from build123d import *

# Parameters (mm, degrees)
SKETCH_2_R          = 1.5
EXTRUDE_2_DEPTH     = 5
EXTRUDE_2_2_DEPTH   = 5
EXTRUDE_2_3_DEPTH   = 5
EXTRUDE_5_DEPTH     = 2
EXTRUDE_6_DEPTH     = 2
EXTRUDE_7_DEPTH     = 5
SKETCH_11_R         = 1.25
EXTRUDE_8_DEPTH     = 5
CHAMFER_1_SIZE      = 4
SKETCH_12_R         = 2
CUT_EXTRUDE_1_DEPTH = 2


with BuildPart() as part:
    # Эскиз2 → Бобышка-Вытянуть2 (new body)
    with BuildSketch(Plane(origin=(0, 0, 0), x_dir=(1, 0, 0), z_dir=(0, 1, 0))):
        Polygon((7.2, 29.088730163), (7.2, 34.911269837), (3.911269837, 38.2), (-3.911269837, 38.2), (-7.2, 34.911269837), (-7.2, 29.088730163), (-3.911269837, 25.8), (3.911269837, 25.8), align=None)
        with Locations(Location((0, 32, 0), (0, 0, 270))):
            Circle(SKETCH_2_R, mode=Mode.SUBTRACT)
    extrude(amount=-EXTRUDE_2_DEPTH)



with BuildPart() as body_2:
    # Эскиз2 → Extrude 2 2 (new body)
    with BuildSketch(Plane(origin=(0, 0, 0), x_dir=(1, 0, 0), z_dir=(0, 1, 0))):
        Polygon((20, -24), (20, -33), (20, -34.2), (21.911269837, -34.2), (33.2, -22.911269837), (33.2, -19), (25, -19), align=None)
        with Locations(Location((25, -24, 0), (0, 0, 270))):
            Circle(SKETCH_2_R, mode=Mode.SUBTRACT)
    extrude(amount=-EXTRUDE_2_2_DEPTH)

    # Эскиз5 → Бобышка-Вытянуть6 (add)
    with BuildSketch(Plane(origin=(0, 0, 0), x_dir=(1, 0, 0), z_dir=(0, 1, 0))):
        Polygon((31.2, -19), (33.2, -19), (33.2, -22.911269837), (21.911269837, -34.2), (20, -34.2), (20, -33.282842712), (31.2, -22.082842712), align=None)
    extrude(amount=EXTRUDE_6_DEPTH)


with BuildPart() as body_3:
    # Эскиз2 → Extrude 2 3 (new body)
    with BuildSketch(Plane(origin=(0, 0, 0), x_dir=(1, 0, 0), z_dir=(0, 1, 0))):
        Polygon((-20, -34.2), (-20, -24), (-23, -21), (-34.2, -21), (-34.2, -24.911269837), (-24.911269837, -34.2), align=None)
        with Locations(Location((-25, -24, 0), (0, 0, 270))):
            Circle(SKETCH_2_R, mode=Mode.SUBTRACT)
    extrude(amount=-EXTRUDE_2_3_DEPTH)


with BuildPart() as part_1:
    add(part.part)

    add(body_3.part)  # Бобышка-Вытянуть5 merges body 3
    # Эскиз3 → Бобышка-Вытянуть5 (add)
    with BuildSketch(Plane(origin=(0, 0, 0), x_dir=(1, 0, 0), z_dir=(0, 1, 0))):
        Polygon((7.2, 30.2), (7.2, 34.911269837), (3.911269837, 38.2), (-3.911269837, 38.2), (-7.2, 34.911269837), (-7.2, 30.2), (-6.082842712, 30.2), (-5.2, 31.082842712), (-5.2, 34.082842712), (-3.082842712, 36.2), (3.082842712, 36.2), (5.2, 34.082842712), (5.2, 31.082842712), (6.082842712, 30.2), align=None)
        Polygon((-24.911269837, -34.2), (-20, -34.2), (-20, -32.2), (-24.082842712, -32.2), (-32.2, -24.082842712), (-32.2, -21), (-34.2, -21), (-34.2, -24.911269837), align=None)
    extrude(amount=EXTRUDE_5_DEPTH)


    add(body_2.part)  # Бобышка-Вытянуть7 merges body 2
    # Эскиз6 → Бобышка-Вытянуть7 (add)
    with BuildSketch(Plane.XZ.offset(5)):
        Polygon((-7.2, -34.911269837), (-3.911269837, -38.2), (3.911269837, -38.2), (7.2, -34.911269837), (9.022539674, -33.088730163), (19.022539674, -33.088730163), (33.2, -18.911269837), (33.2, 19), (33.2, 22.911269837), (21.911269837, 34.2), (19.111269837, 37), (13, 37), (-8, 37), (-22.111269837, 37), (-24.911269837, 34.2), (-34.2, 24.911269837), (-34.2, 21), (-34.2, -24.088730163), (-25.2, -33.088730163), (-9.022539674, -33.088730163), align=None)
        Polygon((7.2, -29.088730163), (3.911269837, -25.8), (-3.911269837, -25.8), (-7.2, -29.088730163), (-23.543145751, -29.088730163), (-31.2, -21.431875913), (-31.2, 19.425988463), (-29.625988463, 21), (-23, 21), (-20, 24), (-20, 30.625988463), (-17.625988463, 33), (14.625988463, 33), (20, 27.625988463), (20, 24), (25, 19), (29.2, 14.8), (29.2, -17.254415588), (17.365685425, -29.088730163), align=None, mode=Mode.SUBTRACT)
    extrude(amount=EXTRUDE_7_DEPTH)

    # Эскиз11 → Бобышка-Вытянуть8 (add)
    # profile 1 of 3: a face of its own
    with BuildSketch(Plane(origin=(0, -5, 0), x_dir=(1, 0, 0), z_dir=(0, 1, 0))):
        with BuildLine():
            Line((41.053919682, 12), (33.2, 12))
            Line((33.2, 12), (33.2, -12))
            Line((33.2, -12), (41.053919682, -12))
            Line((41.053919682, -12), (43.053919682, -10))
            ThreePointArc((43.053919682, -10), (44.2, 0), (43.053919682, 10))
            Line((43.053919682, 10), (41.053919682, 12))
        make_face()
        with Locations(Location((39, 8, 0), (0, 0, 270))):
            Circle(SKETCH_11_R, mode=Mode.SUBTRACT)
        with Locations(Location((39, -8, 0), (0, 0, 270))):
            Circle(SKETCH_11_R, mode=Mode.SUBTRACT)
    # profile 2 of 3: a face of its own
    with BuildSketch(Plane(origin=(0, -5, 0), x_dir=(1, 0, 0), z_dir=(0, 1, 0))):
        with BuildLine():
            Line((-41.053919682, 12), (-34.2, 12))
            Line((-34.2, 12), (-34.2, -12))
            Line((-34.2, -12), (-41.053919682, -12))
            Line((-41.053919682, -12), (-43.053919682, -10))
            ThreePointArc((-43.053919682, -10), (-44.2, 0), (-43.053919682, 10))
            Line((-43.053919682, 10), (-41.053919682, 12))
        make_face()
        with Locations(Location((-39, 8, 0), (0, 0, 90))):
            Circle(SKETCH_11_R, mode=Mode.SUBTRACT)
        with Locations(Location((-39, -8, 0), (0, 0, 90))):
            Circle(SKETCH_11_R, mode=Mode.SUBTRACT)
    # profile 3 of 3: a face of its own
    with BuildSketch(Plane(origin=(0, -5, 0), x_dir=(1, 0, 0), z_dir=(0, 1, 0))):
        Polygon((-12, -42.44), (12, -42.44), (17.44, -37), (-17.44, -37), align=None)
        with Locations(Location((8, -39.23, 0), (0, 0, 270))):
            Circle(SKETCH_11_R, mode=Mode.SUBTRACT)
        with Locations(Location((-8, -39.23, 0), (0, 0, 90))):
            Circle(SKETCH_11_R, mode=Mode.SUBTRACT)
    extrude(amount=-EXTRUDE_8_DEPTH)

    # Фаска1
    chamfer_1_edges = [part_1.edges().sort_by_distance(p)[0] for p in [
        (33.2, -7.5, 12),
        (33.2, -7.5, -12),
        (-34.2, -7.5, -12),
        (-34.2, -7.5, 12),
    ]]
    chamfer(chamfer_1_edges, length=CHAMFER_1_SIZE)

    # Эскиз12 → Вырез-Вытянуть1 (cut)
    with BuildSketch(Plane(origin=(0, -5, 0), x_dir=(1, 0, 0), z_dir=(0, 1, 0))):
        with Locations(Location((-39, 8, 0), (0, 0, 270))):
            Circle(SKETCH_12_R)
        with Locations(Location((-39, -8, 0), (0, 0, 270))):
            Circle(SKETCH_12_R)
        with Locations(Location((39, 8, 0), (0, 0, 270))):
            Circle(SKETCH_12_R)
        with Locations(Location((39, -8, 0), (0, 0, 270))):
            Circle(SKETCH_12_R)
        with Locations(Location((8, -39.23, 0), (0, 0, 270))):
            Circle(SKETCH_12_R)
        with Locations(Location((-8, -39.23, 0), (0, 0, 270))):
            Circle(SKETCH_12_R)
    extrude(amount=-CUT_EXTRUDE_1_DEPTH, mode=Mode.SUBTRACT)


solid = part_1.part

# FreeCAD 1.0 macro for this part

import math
import FreeCAD as App
import Part
import Sketcher
Q = App.Units.Quantity


def edges_at(feature, points):
    """Names of the edges that pass closest to the given points."""
    edges = feature.Shape.Edges
    near = lambda p: min(range(len(edges)), key=lambda i: edges[i].distToShape(Part.Vertex(*p))[0])
    return sorted({f"Edge{near(p) + 1}" for p in points})

doc = App.newDocument("Part")
body = doc.addObject("PartDesign::Body", "Body")

sketch1 = doc.addObject("Sketcher::SketchObject", "Sketch")
body.addObject(sketch1)
sketch1.AttachmentSupport = (doc.XZ_Plane, [""])
sketch1.MapMode = "FlatFace"
sketch1.addGeometry(Part.LineSegment(App.Vector(7.2, -29.1, 0), App.Vector(7.2, -34.9, 0)), False)
sketch1.addGeometry(Part.LineSegment(App.Vector(7.2, -34.9, 0), App.Vector(3.9, -38.2, 0)), False)
sketch1.addGeometry(Part.LineSegment(App.Vector(3.9, -38.2, 0), App.Vector(-3.9, -38.2, 0)), False)
sketch1.addGeometry(Part.LineSegment(App.Vector(-3.9, -38.2, 0), App.Vector(-7.2, -34.9, 0)), False)
sketch1.addGeometry(Part.LineSegment(App.Vector(-7.2, -34.9, 0), App.Vector(-7.2, -29.1, 0)), False)
sketch1.addGeometry(Part.LineSegment(App.Vector(-7.2, -29.1, 0), App.Vector(-3.9, -25.8, 0)), False)
sketch1.addGeometry(Part.LineSegment(App.Vector(-3.9, -25.8, 0), App.Vector(3.9, -25.8, 0)), False)
sketch1.addGeometry(Part.LineSegment(App.Vector(3.9, -25.8, 0), App.Vector(7.2, -29.1, 0)), False)
sketch1.addGeometry(Part.Circle(App.Vector(0, -32, 0), App.Vector(0, 0, 1), 1.5), False)
sketch1.addConstraint(Sketcher.Constraint("Coincident", 0, 2, 1, 1))
sketch1.addConstraint(Sketcher.Constraint("Coincident", 1, 2, 2, 1))
sketch1.addConstraint(Sketcher.Constraint("Coincident", 2, 2, 3, 1))
sketch1.addConstraint(Sketcher.Constraint("Coincident", 3, 2, 4, 1))
sketch1.addConstraint(Sketcher.Constraint("Coincident", 4, 2, 5, 1))
sketch1.addConstraint(Sketcher.Constraint("Coincident", 5, 2, 6, 1))
sketch1.addConstraint(Sketcher.Constraint("Coincident", 6, 2, 7, 1))
sketch1.addConstraint(Sketcher.Constraint("Coincident", 7, 2, 0, 1))
sketch1.addConstraint(Sketcher.Constraint("Vertical", 0))
sketch1.addConstraint(Sketcher.Constraint("Horizontal", 2))
sketch1.addConstraint(Sketcher.Constraint("Vertical", 4))
sketch1.addConstraint(Sketcher.Constraint("Horizontal", 6))
sketch1.addConstraint(Sketcher.Constraint("Symmetric", 0, 2, 3, 2, -2))
sketch1.addConstraint(Sketcher.Constraint("PointOnObject", 8, 3, -2))
sketch1.addConstraint(Sketcher.Constraint("Perpendicular", 1, 3))
sketch1.addConstraint(Sketcher.Constraint("Perpendicular", 3, 5))
sketch1.addConstraint(Sketcher.Constraint("Perpendicular", 5, 7))
sketch1.addConstraint(Sketcher.Constraint("Horizontal", 4, 2, 7, 2))
sketch1.addConstraint(Sketcher.Constraint("Vertical", 2, 2, 5, 2))
sketch1.addConstraint(Sketcher.Constraint("Vertical", 1, 2, 6, 2))
sketch1.addConstraint(Sketcher.Constraint("Diameter", 8, 3.0))
sketch1.addConstraint(Sketcher.Constraint("DistanceY", 8, 3, -1, 1, 32.0))
sketch1.addConstraint(Sketcher.Constraint("DistanceX", -1, 1, 0, 2, 7.2))
sketch1.addConstraint(Sketcher.Constraint("DistanceY", 1, 2, -1, 1, 38.2))
sketch1.addConstraint(Sketcher.Constraint("DistanceY", 5, 2, -1, 1, 25.8))
sketch1.addConstraint(Sketcher.Constraint("DistanceX", 2, 2, 2, 1, 7.82254))
pad1 = doc.addObject("PartDesign::Pad", "Pad")
body.addObject(pad1)
pad1.Profile = sketch1
pad1.Length = 5
body2 = doc.addObject("PartDesign::Body", "Body001")

sketch2 = doc.addObject("Sketcher::SketchObject", "Sketch001")
body2.addObject(sketch2)
sketch2.AttachmentSupport = (doc.getObject("XZ_Plane001"), [""])
sketch2.MapMode = "FlatFace"
sketch2.addGeometry(Part.LineSegment(App.Vector(20, 24, 0), App.Vector(20, 34.2, 0)), False)
sketch2.addGeometry(Part.LineSegment(App.Vector(20, 34.2, 0), App.Vector(21.9, 34.2, 0)), False)
sketch2.addGeometry(Part.LineSegment(App.Vector(21.9, 34.2, 0), App.Vector(33.2, 22.9, 0)), False)
sketch2.addGeometry(Part.LineSegment(App.Vector(33.2, 22.9, 0), App.Vector(33.2, 19, 0)), False)
sketch2.addGeometry(Part.LineSegment(App.Vector(33.2, 19, 0), App.Vector(25, 19, 0)), False)
sketch2.addGeometry(Part.LineSegment(App.Vector(25, 19, 0), App.Vector(20, 24, 0)), False)
sketch2.addGeometry(Part.Circle(App.Vector(25, 24, 0), App.Vector(0, 0, 1), 1.5), False)
sketch2.addConstraint(Sketcher.Constraint("Coincident", 0, 2, 1, 1))
sketch2.addConstraint(Sketcher.Constraint("Coincident", 1, 2, 2, 1))
sketch2.addConstraint(Sketcher.Constraint("Coincident", 2, 2, 3, 1))
sketch2.addConstraint(Sketcher.Constraint("Coincident", 3, 2, 4, 1))
sketch2.addConstraint(Sketcher.Constraint("Coincident", 4, 2, 5, 1))
sketch2.addConstraint(Sketcher.Constraint("Coincident", 5, 2, 0, 1))
sketch2.addConstraint(Sketcher.Constraint("Vertical", 0))
sketch2.addConstraint(Sketcher.Constraint("Horizontal", 1))
sketch2.addConstraint(Sketcher.Constraint("Vertical", 3))
sketch2.addConstraint(Sketcher.Constraint("Horizontal", 4))
sketch2.addConstraint(Sketcher.Constraint("Parallel", 2, 5))
sketch2.addConstraint(Sketcher.Constraint("Horizontal", 6, 3, 5, 2))
sketch2.addConstraint(Sketcher.Constraint("Vertical", 6, 3, 4, 2))
sketch2.addConstraint(Sketcher.Constraint("Diameter", 6, 3.0))
sketch2.addConstraint(Sketcher.Constraint("Angle", 2, Q("-45 deg")))
sketch2.addConstraint(Sketcher.Constraint("DistanceX", 4, 2, 4, 1, 8.2))
sketch2.addConstraint(Sketcher.Constraint("DistanceY", 0, 1, 0, 2, 10.2))
sketch2.addConstraint(Sketcher.Constraint("DistanceX", -1, 1, 6, 3, 25.0))
sketch2.addConstraint(Sketcher.Constraint("DistanceY", -1, 1, 6, 3, 24.0))
sketch2.addConstraint(Sketcher.Constraint("DistanceX", -1, 1, 0, 2, 20.0))
sketch2.addConstraint(Sketcher.Constraint("DistanceX", 1, 1, 1, 2, 1.91127))
pad2 = doc.addObject("PartDesign::Pad", "Pad001")
body2.addObject(pad2)
pad2.Profile = sketch2
pad2.Length = 5

sketch3 = doc.addObject("Sketcher::SketchObject", "Sketch002")
body2.addObject(sketch3)
sketch3.AttachmentSupport = (doc.getObject("XZ_Plane001"), [""])
sketch3.MapMode = "FlatFace"
sketch3.addGeometry(Part.LineSegment(App.Vector(33.2, 19, 0), App.Vector(31.2, 19, 0)), False)
sketch3.addGeometry(Part.LineSegment(App.Vector(31.2, 19, 0), App.Vector(31.2, 22.1, 0)), False)
sketch3.addGeometry(Part.LineSegment(App.Vector(31.2, 22.1, 0), App.Vector(20, 33.3, 0)), False)
sketch3.addGeometry(Part.LineSegment(App.Vector(20, 33.3, 0), App.Vector(20, 34.2, 0)), False)
sketch3.addGeometry(Part.LineSegment(App.Vector(20, 34.2, 0), App.Vector(21.9, 34.2, 0)), False)
sketch3.addGeometry(Part.LineSegment(App.Vector(21.9, 34.2, 0), App.Vector(33.2, 22.9, 0)), False)
sketch3.addGeometry(Part.LineSegment(App.Vector(33.2, 22.9, 0), App.Vector(33.2, 19, 0)), False)
sketch3.addConstraint(Sketcher.Constraint("Coincident", 0, 2, 1, 1))
sketch3.addConstraint(Sketcher.Constraint("Coincident", 1, 2, 2, 1))
sketch3.addConstraint(Sketcher.Constraint("Coincident", 2, 2, 3, 1))
sketch3.addConstraint(Sketcher.Constraint("Coincident", 3, 2, 4, 1))
sketch3.addConstraint(Sketcher.Constraint("Coincident", 4, 2, 5, 1))
sketch3.addConstraint(Sketcher.Constraint("Coincident", 5, 2, 6, 1))
sketch3.addConstraint(Sketcher.Constraint("Coincident", 6, 2, 0, 1))
sketch3.addConstraint(Sketcher.Constraint("Horizontal", 0))
sketch3.addConstraint(Sketcher.Constraint("Vertical", 1))
sketch3.addConstraint(Sketcher.Constraint("Vertical", 3))
sketch3.addConstraint(Sketcher.Constraint("Horizontal", 4))
sketch3.addConstraint(Sketcher.Constraint("Vertical", 6))
sketch3.addConstraint(Sketcher.Constraint("Parallel", 2, 5))
sketch3.addConstraint(Sketcher.Constraint("DistanceX", 0, 2, 0, 1, 2.0))
sketch3.addConstraint(Sketcher.Constraint("Angle", 2, Q("135 deg")))
sketch3.addConstraint(Sketcher.Constraint("DistanceY", -1, 1, 0, 2, 19.0))
sketch3.addConstraint(Sketcher.Constraint("DistanceX", -1, 1, 2, 2, 20.0))
sketch3.addConstraint(Sketcher.Constraint("DistanceX", -1, 1, 0, 2, 31.2))
sketch3.addConstraint(Sketcher.Constraint("DistanceY", -1, 1, 3, 2, 34.2))
sketch3.addConstraint(Sketcher.Constraint("DistanceX", 4, 1, 4, 2, 1.91127))
sketch3.addConstraint(Sketcher.Constraint("DistanceY", 1, 1, 1, 2, 3.082843))
pad3 = doc.addObject("PartDesign::Pad", "Pad002")
body2.addObject(pad3)
pad3.Profile = sketch3
pad3.Length = 2
pad3.Reversed = True
body3 = doc.addObject("PartDesign::Body", "Body002")

sketch4 = doc.addObject("Sketcher::SketchObject", "Sketch003")
body3.addObject(sketch4)
sketch4.AttachmentSupport = (doc.getObject("XZ_Plane002"), [""])
sketch4.MapMode = "FlatFace"
sketch4.addGeometry(Part.LineSegment(App.Vector(-20, 34.2, 0), App.Vector(-20, 24, 0)), False)
sketch4.addGeometry(Part.LineSegment(App.Vector(-20, 24, 0), App.Vector(-23, 21, 0)), False)
sketch4.addGeometry(Part.LineSegment(App.Vector(-23, 21, 0), App.Vector(-34.2, 21, 0)), False)
sketch4.addGeometry(Part.LineSegment(App.Vector(-34.2, 21, 0), App.Vector(-34.2, 24.9, 0)), False)
sketch4.addGeometry(Part.LineSegment(App.Vector(-34.2, 24.9, 0), App.Vector(-24.9, 34.2, 0)), False)
sketch4.addGeometry(Part.LineSegment(App.Vector(-24.9, 34.2, 0), App.Vector(-20, 34.2, 0)), False)
sketch4.addGeometry(Part.Circle(App.Vector(-25, 24, 0), App.Vector(0, 0, 1), 1.5), False)
sketch4.addConstraint(Sketcher.Constraint("Coincident", 0, 2, 1, 1))
sketch4.addConstraint(Sketcher.Constraint("Coincident", 1, 2, 2, 1))
sketch4.addConstraint(Sketcher.Constraint("Coincident", 2, 2, 3, 1))
sketch4.addConstraint(Sketcher.Constraint("Coincident", 3, 2, 4, 1))
sketch4.addConstraint(Sketcher.Constraint("Coincident", 4, 2, 5, 1))
sketch4.addConstraint(Sketcher.Constraint("Coincident", 5, 2, 0, 1))
sketch4.addConstraint(Sketcher.Constraint("Vertical", 0))
sketch4.addConstraint(Sketcher.Constraint("Horizontal", 2))
sketch4.addConstraint(Sketcher.Constraint("Vertical", 3))
sketch4.addConstraint(Sketcher.Constraint("Horizontal", 5))
sketch4.addConstraint(Sketcher.Constraint("Parallel", 1, 4))
sketch4.addConstraint(Sketcher.Constraint("Horizontal", 6, 3, 0, 2))
sketch4.addConstraint(Sketcher.Constraint("Diameter", 6, 3.0))
sketch4.addConstraint(Sketcher.Constraint("Angle", 1, Q("-135 deg")))
sketch4.addConstraint(Sketcher.Constraint("DistanceX", 2, 2, 2, 1, 11.2))
sketch4.addConstraint(Sketcher.Constraint("DistanceY", 0, 2, 0, 1, 10.2))
sketch4.addConstraint(Sketcher.Constraint("DistanceX", 6, 3, -1, 1, 25.0))
sketch4.addConstraint(Sketcher.Constraint("DistanceY", -1, 1, 6, 3, 24.0))
sketch4.addConstraint(Sketcher.Constraint("DistanceX", 0, 2, -1, 1, 20.0))
sketch4.addConstraint(Sketcher.Constraint("DistanceX", 1, 2, -1, 1, 23.0))
sketch4.addConstraint(Sketcher.Constraint("DistanceX", 5, 1, 5, 2, 4.91127))
pad4 = doc.addObject("PartDesign::Pad", "Pad003")
body3.addObject(pad4)
pad4.Profile = sketch4
pad4.Length = 5
body.AllowCompound = True
doc.recompute()

boolean = doc.addObject("PartDesign::Boolean", "Boolean")
body.addObject(boolean)
boolean.Type = "Fuse"
boolean.addObjects([body3])

sketch5 = doc.addObject("Sketcher::SketchObject", "Sketch004")
body.addObject(sketch5)
sketch5.AttachmentSupport = (doc.XZ_Plane, [""])
sketch5.MapMode = "FlatFace"
sketch5.addGeometry(Part.LineSegment(App.Vector(7.2, -30.2, 0), App.Vector(7.2, -34.9, 0)), False)
sketch5.addGeometry(Part.LineSegment(App.Vector(7.2, -34.9, 0), App.Vector(3.9, -38.2, 0)), False)
sketch5.addGeometry(Part.LineSegment(App.Vector(3.9, -38.2, 0), App.Vector(-3.9, -38.2, 0)), False)
sketch5.addGeometry(Part.LineSegment(App.Vector(-3.9, -38.2, 0), App.Vector(-7.2, -34.9, 0)), False)
sketch5.addGeometry(Part.LineSegment(App.Vector(-7.2, -34.9, 0), App.Vector(-7.2, -30.2, 0)), False)
sketch5.addGeometry(Part.LineSegment(App.Vector(-7.2, -30.2, 0), App.Vector(-6.1, -30.2, 0)), False)
sketch5.addGeometry(Part.LineSegment(App.Vector(-6.1, -30.2, 0), App.Vector(-5.2, -31.1, 0)), False)
sketch5.addGeometry(Part.LineSegment(App.Vector(-5.2, -31.1, 0), App.Vector(-5.2, -34.1, 0)), False)
sketch5.addGeometry(Part.LineSegment(App.Vector(-5.2, -34.1, 0), App.Vector(-3.1, -36.2, 0)), False)
sketch5.addGeometry(Part.LineSegment(App.Vector(-3.1, -36.2, 0), App.Vector(3.1, -36.2, 0)), False)
sketch5.addGeometry(Part.LineSegment(App.Vector(3.1, -36.2, 0), App.Vector(5.2, -34.1, 0)), False)
sketch5.addGeometry(Part.LineSegment(App.Vector(5.2, -34.1, 0), App.Vector(5.2, -31.1, 0)), False)
sketch5.addGeometry(Part.LineSegment(App.Vector(5.2, -31.1, 0), App.Vector(6.1, -30.2, 0)), False)
sketch5.addGeometry(Part.LineSegment(App.Vector(6.1, -30.2, 0), App.Vector(7.2, -30.2, 0)), False)
sketch5.addGeometry(Part.LineSegment(App.Vector(-24.9, 34.2, 0), App.Vector(-20, 34.2, 0)), False)
sketch5.addGeometry(Part.LineSegment(App.Vector(-20, 34.2, 0), App.Vector(-20, 32.2, 0)), False)
sketch5.addGeometry(Part.LineSegment(App.Vector(-20, 32.2, 0), App.Vector(-24.1, 32.2, 0)), False)
sketch5.addGeometry(Part.LineSegment(App.Vector(-24.1, 32.2, 0), App.Vector(-32.2, 24.1, 0)), False)
sketch5.addGeometry(Part.LineSegment(App.Vector(-32.2, 24.1, 0), App.Vector(-32.2, 21, 0)), False)
sketch5.addGeometry(Part.LineSegment(App.Vector(-32.2, 21, 0), App.Vector(-34.2, 21, 0)), False)
sketch5.addGeometry(Part.LineSegment(App.Vector(-34.2, 21, 0), App.Vector(-34.2, 24.9, 0)), False)
sketch5.addGeometry(Part.LineSegment(App.Vector(-34.2, 24.9, 0), App.Vector(-24.9, 34.2, 0)), False)
sketch5.addConstraint(Sketcher.Constraint("Coincident", 0, 2, 1, 1))
sketch5.addConstraint(Sketcher.Constraint("Coincident", 1, 2, 2, 1))
sketch5.addConstraint(Sketcher.Constraint("Coincident", 2, 2, 3, 1))
sketch5.addConstraint(Sketcher.Constraint("Coincident", 3, 2, 4, 1))
sketch5.addConstraint(Sketcher.Constraint("Coincident", 4, 2, 5, 1))
sketch5.addConstraint(Sketcher.Constraint("Coincident", 5, 2, 6, 1))
sketch5.addConstraint(Sketcher.Constraint("Coincident", 6, 2, 7, 1))
sketch5.addConstraint(Sketcher.Constraint("Coincident", 7, 2, 8, 1))
sketch5.addConstraint(Sketcher.Constraint("Coincident", 8, 2, 9, 1))
sketch5.addConstraint(Sketcher.Constraint("Coincident", 9, 2, 10, 1))
sketch5.addConstraint(Sketcher.Constraint("Coincident", 10, 2, 11, 1))
sketch5.addConstraint(Sketcher.Constraint("Coincident", 11, 2, 12, 1))
sketch5.addConstraint(Sketcher.Constraint("Coincident", 12, 2, 13, 1))
sketch5.addConstraint(Sketcher.Constraint("Coincident", 13, 2, 0, 1))
sketch5.addConstraint(Sketcher.Constraint("Coincident", 14, 2, 15, 1))
sketch5.addConstraint(Sketcher.Constraint("Coincident", 15, 2, 16, 1))
sketch5.addConstraint(Sketcher.Constraint("Coincident", 16, 2, 17, 1))
sketch5.addConstraint(Sketcher.Constraint("Coincident", 17, 2, 18, 1))
sketch5.addConstraint(Sketcher.Constraint("Coincident", 18, 2, 19, 1))
sketch5.addConstraint(Sketcher.Constraint("Coincident", 19, 2, 20, 1))
sketch5.addConstraint(Sketcher.Constraint("Coincident", 20, 2, 21, 1))
sketch5.addConstraint(Sketcher.Constraint("Coincident", 21, 2, 14, 1))
sketch5.addConstraint(Sketcher.Constraint("Vertical", 0))
sketch5.addConstraint(Sketcher.Constraint("Horizontal", 2))
sketch5.addConstraint(Sketcher.Constraint("Vertical", 4))
sketch5.addConstraint(Sketcher.Constraint("Horizontal", 5))
sketch5.addConstraint(Sketcher.Constraint("Vertical", 7))
sketch5.addConstraint(Sketcher.Constraint("Horizontal", 9))
sketch5.addConstraint(Sketcher.Constraint("Vertical", 11))
sketch5.addConstraint(Sketcher.Constraint("Horizontal", 13))
sketch5.addConstraint(Sketcher.Constraint("Horizontal", 14))
sketch5.addConstraint(Sketcher.Constraint("Vertical", 15))
sketch5.addConstraint(Sketcher.Constraint("Horizontal", 16))
sketch5.addConstraint(Sketcher.Constraint("Vertical", 18))
sketch5.addConstraint(Sketcher.Constraint("Horizontal", 19))
sketch5.addConstraint(Sketcher.Constraint("Vertical", 20))
sketch5.addConstraint(Sketcher.Constraint("Symmetric", 0, 2, 3, 2, -2))
sketch5.addConstraint(Sketcher.Constraint("Symmetric", 7, 2, 10, 2, -2))
sketch5.addConstraint(Sketcher.Constraint("Symmetric", 5, 2, 12, 2, -2))
sketch5.addConstraint(Sketcher.Constraint("Perpendicular", 1, 3))
sketch5.addConstraint(Sketcher.Constraint("Parallel", 3, 6))
sketch5.addConstraint(Sketcher.Constraint("Parallel", 6, 8))
sketch5.addConstraint(Sketcher.Constraint("Perpendicular", 8, 10))
sketch5.addConstraint(Sketcher.Constraint("Parallel", 10, 12))
sketch5.addConstraint(Sketcher.Constraint("Parallel", 12, 17))
sketch5.addConstraint(Sketcher.Constraint("Parallel", 17, 21))
sketch5.addConstraint(Sketcher.Constraint("Horizontal", 6, 2, 11, 2))
sketch5.addConstraint(Sketcher.Constraint("Equal", 19, 15))
sketch5.addConstraint(Sketcher.Constraint("DistanceX", 19, 2, 19, 1, 2.0))
sketch5.addConstraint(Sketcher.Constraint("DistanceY", 7, 2, 7, 1, 3.0))
sketch5.addConstraint(Sketcher.Constraint("DistanceX", 14, 2, -1, 1, 20.0))
sketch5.addConstraint(Sketcher.Constraint("DistanceY", -1, 1, 18, 2, 21.0))
sketch5.addConstraint(Sketcher.Constraint("DistanceY", 2, 2, 4, 2, 8.0))
sketch5.addConstraint(Sketcher.Constraint("DistanceX", 4, 2, 6, 2, 2.0))
sketch5.addConstraint(Sketcher.Constraint("DistanceY", 2, 2, 8, 2, 2.0))
sketch5.addConstraint(Sketcher.Constraint("DistanceX", 16, 2, 5, 2, 18.0))
sketch5.addConstraint(Sketcher.Constraint("DistanceX", 17, 2, 4, 2, 25.0))
sketch5.addConstraint(Sketcher.Constraint("DistanceX", -1, 1, 0, 2, 7.2))
sketch5.addConstraint(Sketcher.Constraint("DistanceY", 1, 2, -1, 1, 38.2))
sketch5.addConstraint(Sketcher.Constraint("DistanceY", -1, 1, 14, 2, 34.2))
sketch5.addConstraint(Sketcher.Constraint("DistanceX", 2, 2, 2, 1, 7.82254))
sketch5.addConstraint(Sketcher.Constraint("DistanceX", 14, 1, 14, 2, 4.91127))
sketch5.addConstraint(Sketcher.Constraint("Distance", 6, 1.248528))
pad5 = doc.addObject("PartDesign::Pad", "Pad004")
body.addObject(pad5)
pad5.Profile = sketch5
pad5.Length = 2
pad5.Reversed = True
doc.recompute()

boolean2 = doc.addObject("PartDesign::Boolean", "Boolean001")
body.addObject(boolean2)
boolean2.Type = "Fuse"
boolean2.addObjects([body2])

sketch6 = doc.addObject("Sketcher::SketchObject", "Sketch005")
body.addObject(sketch6)
sketch6.AttachmentSupport = (doc.XZ_Plane, [""])
sketch6.MapMode = "FlatFace"
sketch6.AttachmentOffset = App.Placement(App.Vector(0, 0, 5), App.Rotation())
sketch6.addGeometry(Part.LineSegment(App.Vector(-3.9, -38.2, 0), App.Vector(3.9, -38.2, 0)), False)
sketch6.addGeometry(Part.LineSegment(App.Vector(3.9, -38.2, 0), App.Vector(9, -33.1, 0)), False)
sketch6.addGeometry(Part.LineSegment(App.Vector(9, -33.1, 0), App.Vector(19, -33.1, 0)), False)
sketch6.addGeometry(Part.LineSegment(App.Vector(19, -33.1, 0), App.Vector(33.2, -18.9, 0)), False)
sketch6.addGeometry(Part.LineSegment(App.Vector(33.2, -18.9, 0), App.Vector(33.2, 22.9, 0)), False)
sketch6.addGeometry(Part.LineSegment(App.Vector(33.2, 22.9, 0), App.Vector(19.1, 37, 0)), False)
sketch6.addGeometry(Part.LineSegment(App.Vector(19.1, 37, 0), App.Vector(-22.1, 37, 0)), False)
sketch6.addGeometry(Part.LineSegment(App.Vector(-22.1, 37, 0), App.Vector(-34.2, 24.9, 0)), False)
sketch6.addGeometry(Part.LineSegment(App.Vector(-34.2, 24.9, 0), App.Vector(-34.2, -24.1, 0)), False)
sketch6.addGeometry(Part.LineSegment(App.Vector(-34.2, -24.1, 0), App.Vector(-25.2, -33.1, 0)), False)
sketch6.addGeometry(Part.LineSegment(App.Vector(-25.2, -33.1, 0), App.Vector(-9, -33.1, 0)), False)
sketch6.addGeometry(Part.LineSegment(App.Vector(-9, -33.1, 0), App.Vector(-3.9, -38.2, 0)), False)
sketch6.addGeometry(Part.LineSegment(App.Vector(17.4, -29.1, 0), App.Vector(7.2, -29.1, 0)), False)
sketch6.addGeometry(Part.LineSegment(App.Vector(7.2, -29.1, 0), App.Vector(3.9, -25.8, 0)), False)
sketch6.addGeometry(Part.LineSegment(App.Vector(3.9, -25.8, 0), App.Vector(-3.9, -25.8, 0)), False)
sketch6.addGeometry(Part.LineSegment(App.Vector(-3.9, -25.8, 0), App.Vector(-7.2, -29.1, 0)), False)
sketch6.addGeometry(Part.LineSegment(App.Vector(-7.2, -29.1, 0), App.Vector(-23.5, -29.1, 0)), False)
sketch6.addGeometry(Part.LineSegment(App.Vector(-23.5, -29.1, 0), App.Vector(-31.2, -21.4, 0)), False)
sketch6.addGeometry(Part.LineSegment(App.Vector(-31.2, -21.4, 0), App.Vector(-31.2, 19.4, 0)), False)
sketch6.addGeometry(Part.LineSegment(App.Vector(-31.2, 19.4, 0), App.Vector(-29.6, 21, 0)), False)
sketch6.addGeometry(Part.LineSegment(App.Vector(-29.6, 21, 0), App.Vector(-23, 21, 0)), False)
sketch6.addGeometry(Part.LineSegment(App.Vector(-23, 21, 0), App.Vector(-20, 24, 0)), False)
sketch6.addGeometry(Part.LineSegment(App.Vector(-20, 24, 0), App.Vector(-20, 30.6, 0)), False)
sketch6.addGeometry(Part.LineSegment(App.Vector(-20, 30.6, 0), App.Vector(-17.6, 33, 0)), False)
sketch6.addGeometry(Part.LineSegment(App.Vector(-17.6, 33, 0), App.Vector(14.6, 33, 0)), False)
sketch6.addGeometry(Part.LineSegment(App.Vector(14.6, 33, 0), App.Vector(20, 27.6, 0)), False)
sketch6.addGeometry(Part.LineSegment(App.Vector(20, 27.6, 0), App.Vector(20, 24, 0)), False)
sketch6.addGeometry(Part.LineSegment(App.Vector(20, 24, 0), App.Vector(29.2, 14.8, 0)), False)
sketch6.addGeometry(Part.LineSegment(App.Vector(29.2, 14.8, 0), App.Vector(29.2, -17.3, 0)), False)
sketch6.addGeometry(Part.LineSegment(App.Vector(29.2, -17.3, 0), App.Vector(17.4, -29.1, 0)), False)
sketch6.addConstraint(Sketcher.Constraint("Coincident", 0, 2, 1, 1))
sketch6.addConstraint(Sketcher.Constraint("Coincident", 1, 2, 2, 1))
sketch6.addConstraint(Sketcher.Constraint("Coincident", 2, 2, 3, 1))
sketch6.addConstraint(Sketcher.Constraint("Coincident", 3, 2, 4, 1))
sketch6.addConstraint(Sketcher.Constraint("Coincident", 4, 2, 5, 1))
sketch6.addConstraint(Sketcher.Constraint("Coincident", 5, 2, 6, 1))
sketch6.addConstraint(Sketcher.Constraint("Coincident", 6, 2, 7, 1))
sketch6.addConstraint(Sketcher.Constraint("Coincident", 7, 2, 8, 1))
sketch6.addConstraint(Sketcher.Constraint("Coincident", 8, 2, 9, 1))
sketch6.addConstraint(Sketcher.Constraint("Coincident", 9, 2, 10, 1))
sketch6.addConstraint(Sketcher.Constraint("Coincident", 10, 2, 11, 1))
sketch6.addConstraint(Sketcher.Constraint("Coincident", 11, 2, 0, 1))
sketch6.addConstraint(Sketcher.Constraint("Coincident", 12, 2, 13, 1))
sketch6.addConstraint(Sketcher.Constraint("Coincident", 13, 2, 14, 1))
sketch6.addConstraint(Sketcher.Constraint("Coincident", 14, 2, 15, 1))
sketch6.addConstraint(Sketcher.Constraint("Coincident", 15, 2, 16, 1))
sketch6.addConstraint(Sketcher.Constraint("Coincident", 16, 2, 17, 1))
sketch6.addConstraint(Sketcher.Constraint("Coincident", 17, 2, 18, 1))
sketch6.addConstraint(Sketcher.Constraint("Coincident", 18, 2, 19, 1))
sketch6.addConstraint(Sketcher.Constraint("Coincident", 19, 2, 20, 1))
sketch6.addConstraint(Sketcher.Constraint("Coincident", 20, 2, 21, 1))
sketch6.addConstraint(Sketcher.Constraint("Coincident", 21, 2, 22, 1))
sketch6.addConstraint(Sketcher.Constraint("Coincident", 22, 2, 23, 1))
sketch6.addConstraint(Sketcher.Constraint("Coincident", 23, 2, 24, 1))
sketch6.addConstraint(Sketcher.Constraint("Coincident", 24, 2, 25, 1))
sketch6.addConstraint(Sketcher.Constraint("Coincident", 25, 2, 26, 1))
sketch6.addConstraint(Sketcher.Constraint("Coincident", 26, 2, 27, 1))
sketch6.addConstraint(Sketcher.Constraint("Coincident", 27, 2, 28, 1))
sketch6.addConstraint(Sketcher.Constraint("Coincident", 28, 2, 29, 1))
sketch6.addConstraint(Sketcher.Constraint("Coincident", 29, 2, 12, 1))
sketch6.addConstraint(Sketcher.Constraint("Horizontal", 0))
sketch6.addConstraint(Sketcher.Constraint("Horizontal", 2))
sketch6.addConstraint(Sketcher.Constraint("Vertical", 4))
sketch6.addConstraint(Sketcher.Constraint("Horizontal", 6))
sketch6.addConstraint(Sketcher.Constraint("Vertical", 8))
sketch6.addConstraint(Sketcher.Constraint("Horizontal", 10))
sketch6.addConstraint(Sketcher.Constraint("Horizontal", 12))
sketch6.addConstraint(Sketcher.Constraint("Horizontal", 14))
sketch6.addConstraint(Sketcher.Constraint("Horizontal", 16))
sketch6.addConstraint(Sketcher.Constraint("Vertical", 18))
sketch6.addConstraint(Sketcher.Constraint("Horizontal", 20))
sketch6.addConstraint(Sketcher.Constraint("Vertical", 22))
sketch6.addConstraint(Sketcher.Constraint("Horizontal", 24))
sketch6.addConstraint(Sketcher.Constraint("Vertical", 26))
sketch6.addConstraint(Sketcher.Constraint("Vertical", 28))
sketch6.addConstraint(Sketcher.Constraint("Symmetric", 1, 2, 10, 2, -2))
sketch6.addConstraint(Sketcher.Constraint("Symmetric", 12, 2, 15, 2, -2))
sketch6.addConstraint(Sketcher.Constraint("Symmetric", 21, 2, 26, 2, -2))
sketch6.addConstraint(Sketcher.Constraint("Parallel", 1, 3))
sketch6.addConstraint(Sketcher.Constraint("Perpendicular", 3, 5))
sketch6.addConstraint(Sketcher.Constraint("Perpendicular", 5, 7))
sketch6.addConstraint(Sketcher.Constraint("Perpendicular", 7, 9))
sketch6.addConstraint(Sketcher.Constraint("Parallel", 9, 11))
sketch6.addConstraint(Sketcher.Constraint("Parallel", 11, 13))
sketch6.addConstraint(Sketcher.Constraint("Perpendicular", 13, 15))
sketch6.addConstraint(Sketcher.Constraint("Perpendicular", 15, 17))
sketch6.addConstraint(Sketcher.Constraint("Perpendicular", 17, 19))
sketch6.addConstraint(Sketcher.Constraint("Parallel", 19, 21))
sketch6.addConstraint(Sketcher.Constraint("Parallel", 21, 23))
sketch6.addConstraint(Sketcher.Constraint("Perpendicular", 23, 25))
sketch6.addConstraint(Sketcher.Constraint("Parallel", 25, 27))
sketch6.addConstraint(Sketcher.Constraint("Perpendicular", 27, 29))
sketch6.addConstraint(Sketcher.Constraint("Vertical", 0, 2, 13, 2))
sketch6.addConstraint(Sketcher.Constraint("Vertical", 11, 2, 14, 2))
sketch6.addConstraint(Sketcher.Constraint("Equal", 20, 22))
sketch6.addConstraint(Sketcher.Constraint("DistanceX", 2, 1, 2, 2, 10.0))
sketch6.addConstraint(Sketcher.Constraint("DistanceY", 8, 2, 8, 1, 49.0))
sketch6.addConstraint(Sketcher.Constraint("DistanceY", -1, 1, 5, 2, 37.0))
sketch6.addConstraint(Sketcher.Constraint("DistanceY", -1, 1, 19, 2, 21.0))
sketch6.addConstraint(Sketcher.Constraint("DistanceX", 20, 2, -1, 1, 23.0))
sketch6.addConstraint(Sketcher.Constraint("DistanceX", 21, 2, -1, 1, 20.0))
sketch6.addConstraint(Sketcher.Constraint("DistanceY", -1, 1, 23, 2, 33.0))
sketch6.addConstraint(Sketcher.Constraint("DistanceY", 2, 2, 4, 2, 56.0))
sketch6.addConstraint(Sketcher.Constraint("DistanceY", 4, 2, 7, 2, 2.0))
sketch6.addConstraint(Sketcher.Constraint("DistanceY", 1, 2, 12, 2, 4.0))
sketch6.addConstraint(Sketcher.Constraint("DistanceX", 8, 2, 17, 2, 3.0))
sketch6.addConstraint(Sketcher.Constraint("DistanceX", 17, 2, 15, 2, 24.0))
sketch6.addConstraint(Sketcher.Constraint("DistanceY", 25, 2, 22, 2, 3.0))
sketch6.addConstraint(Sketcher.Constraint("DistanceX", 27, 2, 4, 2, 4.0))
sketch6.addConstraint(Sketcher.Constraint("DistanceX", 12, 2, 28, 2, 22.0))
sketch6.addConstraint(Sketcher.Constraint("Distance", 25, 7.6))
sketch6.addConstraint(Sketcher.Constraint("DistanceY", 0, 2, -1, 1, 38.2))
sketch6.addConstraint(Sketcher.Constraint("DistanceX", -1, 1, 3, 2, 33.2))
sketch6.addConstraint(Sketcher.Constraint("DistanceY", 13, 2, -1, 1, 25.8))
sketch6.addConstraint(Sketcher.Constraint("DistanceX", 0, 1, 0, 2, 7.82254))
sketch6.addConstraint(Sketcher.Constraint("Distance", 29, 16.736248))
sketch6.addConstraint(Sketcher.Constraint("DistanceX", 16, 2, 16, 1, 16.343146))
pad6 = doc.addObject("PartDesign::Pad", "Pad005")
body.addObject(pad6)
pad6.Profile = sketch6
pad6.Length = 5

sketch7 = doc.addObject("Sketcher::SketchObject", "Sketch006")
body.addObject(sketch7)
sketch7.AttachmentSupport = (doc.XZ_Plane, [""])
sketch7.MapMode = "FlatFace"
sketch7.AttachmentOffset = App.Placement(App.Vector(0, 0, 5), App.Rotation())
sketch7.addGeometry(Part.LineSegment(App.Vector(41.1, -12, 0), App.Vector(33.2, -12, 0)), False)
sketch7.addGeometry(Part.LineSegment(App.Vector(33.2, -12, 0), App.Vector(33.2, 12, 0)), False)
sketch7.addGeometry(Part.LineSegment(App.Vector(33.2, 12, 0), App.Vector(41.1, 12, 0)), False)
sketch7.addGeometry(Part.LineSegment(App.Vector(41.1, 12, 0), App.Vector(43.1, 10, 0)), False)
sketch7.addGeometry(Part.ArcOfCircle(Part.Circle(App.Vector(0, 0, 0), App.Vector(0, 0, 1), 44.2), math.radians(-13), math.radians(13)), False)
sketch7.addGeometry(Part.LineSegment(App.Vector(43.1, -10, 0), App.Vector(41.1, -12, 0)), False)
sketch7.addGeometry(Part.Circle(App.Vector(39, 8, 0), App.Vector(0, 0, 1), 1.2), False)
sketch7.addGeometry(Part.Circle(App.Vector(39, -8, 0), App.Vector(0, 0, 1), 1.2), False)
sketch7.addGeometry(Part.LineSegment(App.Vector(-34.2, -12, 0), App.Vector(-41.1, -12, 0)), False)
sketch7.addGeometry(Part.LineSegment(App.Vector(-41.1, -12, 0), App.Vector(-43.1, -10, 0)), False)
sketch7.addGeometry(Part.ArcOfCircle(Part.Circle(App.Vector(0, 0, 0), App.Vector(0, 0, 1), 44.2), math.radians(167), math.radians(193)), False)
sketch7.addGeometry(Part.LineSegment(App.Vector(-43.1, 10, 0), App.Vector(-41.1, 12, 0)), False)
sketch7.addGeometry(Part.LineSegment(App.Vector(-41.1, 12, 0), App.Vector(-34.2, 12, 0)), False)
sketch7.addGeometry(Part.LineSegment(App.Vector(-34.2, 12, 0), App.Vector(-34.2, -12, 0)), False)
sketch7.addGeometry(Part.Circle(App.Vector(-39, 8, 0), App.Vector(0, 0, 1), 1.2), False)
sketch7.addGeometry(Part.Circle(App.Vector(-39, -8, 0), App.Vector(0, 0, 1), 1.2), False)
sketch7.addGeometry(Part.LineSegment(App.Vector(-12, 42.4, 0), App.Vector(12, 42.4, 0)), False)
sketch7.addGeometry(Part.LineSegment(App.Vector(12, 42.4, 0), App.Vector(17.4, 37, 0)), False)
sketch7.addGeometry(Part.LineSegment(App.Vector(17.4, 37, 0), App.Vector(-17.4, 37, 0)), False)
sketch7.addGeometry(Part.LineSegment(App.Vector(-17.4, 37, 0), App.Vector(-12, 42.4, 0)), False)
sketch7.addGeometry(Part.Circle(App.Vector(-8, 39.2, 0), App.Vector(0, 0, 1), 1.2), False)
sketch7.addGeometry(Part.Circle(App.Vector(8, 39.2, 0), App.Vector(0, 0, 1), 1.2), False)
sketch7.addConstraint(Sketcher.Constraint("Coincident", 0, 2, 1, 1))
sketch7.addConstraint(Sketcher.Constraint("Coincident", 1, 2, 2, 1))
sketch7.addConstraint(Sketcher.Constraint("Coincident", 2, 2, 3, 1))
sketch7.addConstraint(Sketcher.Constraint("Coincident", 3, 2, 4, 2))
sketch7.addConstraint(Sketcher.Constraint("Coincident", 4, 1, 5, 1))
sketch7.addConstraint(Sketcher.Constraint("Coincident", 5, 2, 0, 1))
sketch7.addConstraint(Sketcher.Constraint("Coincident", 8, 2, 9, 1))
sketch7.addConstraint(Sketcher.Constraint("Coincident", 9, 2, 10, 2))
sketch7.addConstraint(Sketcher.Constraint("Coincident", 10, 1, 11, 1))
sketch7.addConstraint(Sketcher.Constraint("Coincident", 11, 2, 12, 1))
sketch7.addConstraint(Sketcher.Constraint("Coincident", 12, 2, 13, 1))
sketch7.addConstraint(Sketcher.Constraint("Coincident", 13, 2, 8, 1))
sketch7.addConstraint(Sketcher.Constraint("Coincident", 16, 2, 17, 1))
sketch7.addConstraint(Sketcher.Constraint("Coincident", 17, 2, 18, 1))
sketch7.addConstraint(Sketcher.Constraint("Coincident", 18, 2, 19, 1))
sketch7.addConstraint(Sketcher.Constraint("Coincident", 19, 2, 16, 1))
sketch7.addConstraint(Sketcher.Constraint("Horizontal", 0))
sketch7.addConstraint(Sketcher.Constraint("Vertical", 1))
sketch7.addConstraint(Sketcher.Constraint("Horizontal", 2))
sketch7.addConstraint(Sketcher.Constraint("Horizontal", 8))
sketch7.addConstraint(Sketcher.Constraint("Horizontal", 12))
sketch7.addConstraint(Sketcher.Constraint("Vertical", 13))
sketch7.addConstraint(Sketcher.Constraint("Horizontal", 16))
sketch7.addConstraint(Sketcher.Constraint("Horizontal", 18))
sketch7.addConstraint(Sketcher.Constraint("Coincident", 4, 3, -1, 1))
sketch7.addConstraint(Sketcher.Constraint("Coincident", 10, 3, -1, 1))
sketch7.addConstraint(Sketcher.Constraint("Equal", 6, 7))
sketch7.addConstraint(Sketcher.Constraint("Equal", 4, 10))
sketch7.addConstraint(Sketcher.Constraint("Equal", 7, 14))
sketch7.addConstraint(Sketcher.Constraint("Equal", 14, 15))
sketch7.addConstraint(Sketcher.Constraint("Equal", 15, 20))
sketch7.addConstraint(Sketcher.Constraint("Equal", 20, 21))
sketch7.addConstraint(Sketcher.Constraint("Symmetric", 7, 3, 14, 3, -1, 1))
sketch7.addConstraint(Sketcher.Constraint("Symmetric", 6, 3, 15, 3, -1, 1))
sketch7.addConstraint(Sketcher.Constraint("Symmetric", 2, 2, 8, 2, -1, 1))
sketch7.addConstraint(Sketcher.Constraint("Symmetric", 5, 2, 11, 2, -1, 1))
sketch7.addConstraint(Sketcher.Constraint("Symmetric", 6, 3, 14, 3, -2))
sketch7.addConstraint(Sketcher.Constraint("Symmetric", 20, 3, 21, 3, -2))
sketch7.addConstraint(Sketcher.Constraint("Symmetric", 5, 2, 8, 2, -2))
sketch7.addConstraint(Sketcher.Constraint("Perpendicular", 3, 5))
sketch7.addConstraint(Sketcher.Constraint("Perpendicular", 5, 9))
sketch7.addConstraint(Sketcher.Constraint("Perpendicular", 9, 11))
sketch7.addConstraint(Sketcher.Constraint("Perpendicular", 11, 17))
sketch7.addConstraint(Sketcher.Constraint("Perpendicular", 17, 19))
sketch7.addConstraint(Sketcher.Constraint("Horizontal", 4, 1, 9, 2))
sketch7.addConstraint(Sketcher.Constraint("Equal", 16, 1))
sketch7.addConstraint(Sketcher.Constraint("Diameter", 6, 2.5))
sketch7.addConstraint(Sketcher.Constraint("Radius", 4, 44.2))
sketch7.addConstraint(Sketcher.Constraint("DistanceX", 16, 1, 16, 2, 24.0))
sketch7.addConstraint(Sketcher.Constraint("DistanceX", -1, 1, 6, 3, 39.0))
sketch7.addConstraint(Sketcher.Constraint("DistanceY", -1, 1, 6, 3, 8.0))
sketch7.addConstraint(Sketcher.Constraint("DistanceX", 20, 3, -1, 1, 8.0))
sketch7.addConstraint(Sketcher.Constraint("DistanceY", -1, 1, 3, 2, 10.0))
sketch7.addConstraint(Sketcher.Constraint("DistanceX", -1, 1, 16, 2, 12.0))
sketch7.addConstraint(Sketcher.Constraint("DistanceY", -1, 1, 17, 2, 37.0))
sketch7.addConstraint(Sketcher.Constraint("DistanceX", 18, 2, 18, 1, 34.88))
sketch7.addConstraint(Sketcher.Constraint("DistanceX", -1, 1, 0, 2, 33.2))
sketch7.addConstraint(Sketcher.Constraint("DistanceX", 12, 2, -1, 1, 34.2))
sketch7.addConstraint(Sketcher.Constraint("DistanceY", -1, 1, 20, 3, 39.23))
pad7 = doc.addObject("PartDesign::Pad", "Pad006")
body.addObject(pad7)
pad7.Profile = sketch7
pad7.Length = 5
doc.recompute()

chamfer = doc.addObject("PartDesign::Chamfer", "Chamfer")
body.addObject(chamfer)
chamfer.Base = (pad7, edges_at(pad7, [
    (33.2, -7.5, 12),
    (33.2, -7.5, -12),
    (-34.2, -7.5, -12),
    (-34.2, -7.5, 12),
]))
chamfer.Size = 4

sketch8 = doc.addObject("Sketcher::SketchObject", "Sketch007")
body.addObject(sketch8)
sketch8.AttachmentSupport = (doc.XZ_Plane, [""])
sketch8.MapMode = "FlatFace"
sketch8.AttachmentOffset = App.Placement(App.Vector(0, 0, 5), App.Rotation())
sketch8.addGeometry(Part.Circle(App.Vector(-39, -8, 0), App.Vector(0, 0, 1), 2), False)
sketch8.addGeometry(Part.Circle(App.Vector(-39, 8, 0), App.Vector(0, 0, 1), 2), False)
sketch8.addGeometry(Part.Circle(App.Vector(39, -8, 0), App.Vector(0, 0, 1), 2), False)
sketch8.addGeometry(Part.Circle(App.Vector(39, 8, 0), App.Vector(0, 0, 1), 2), False)
sketch8.addGeometry(Part.Circle(App.Vector(8, 39.2, 0), App.Vector(0, 0, 1), 2), False)
sketch8.addGeometry(Part.Circle(App.Vector(-8, 39.2, 0), App.Vector(0, 0, 1), 2), False)
sketch8.addConstraint(Sketcher.Constraint("Equal", 0, 1))
sketch8.addConstraint(Sketcher.Constraint("Equal", 1, 2))
sketch8.addConstraint(Sketcher.Constraint("Equal", 2, 3))
sketch8.addConstraint(Sketcher.Constraint("Equal", 3, 4))
sketch8.addConstraint(Sketcher.Constraint("Equal", 4, 5))
sketch8.addConstraint(Sketcher.Constraint("Symmetric", 1, 3, 2, 3, -1, 1))
sketch8.addConstraint(Sketcher.Constraint("Symmetric", 0, 3, 3, 3, -1, 1))
sketch8.addConstraint(Sketcher.Constraint("Symmetric", 0, 3, 2, 3, -2))
sketch8.addConstraint(Sketcher.Constraint("Symmetric", 4, 3, 5, 3, -2))
sketch8.addConstraint(Sketcher.Constraint("Diameter", 0, 4.0))
sketch8.addConstraint(Sketcher.Constraint("DistanceX", 0, 3, -1, 1, 39.0))
sketch8.addConstraint(Sketcher.Constraint("DistanceY", 0, 3, -1, 1, 8.0))
sketch8.addConstraint(Sketcher.Constraint("DistanceX", -1, 1, 4, 3, 8.0))
sketch8.addConstraint(Sketcher.Constraint("DistanceY", -1, 1, 4, 3, 39.23))
pocket1 = doc.addObject("PartDesign::Pocket", "Pocket")
body.addObject(pocket1)
pocket1.Profile = sketch8
pocket1.Length = 2
pocket1.Reversed = True

doc.recompute()
